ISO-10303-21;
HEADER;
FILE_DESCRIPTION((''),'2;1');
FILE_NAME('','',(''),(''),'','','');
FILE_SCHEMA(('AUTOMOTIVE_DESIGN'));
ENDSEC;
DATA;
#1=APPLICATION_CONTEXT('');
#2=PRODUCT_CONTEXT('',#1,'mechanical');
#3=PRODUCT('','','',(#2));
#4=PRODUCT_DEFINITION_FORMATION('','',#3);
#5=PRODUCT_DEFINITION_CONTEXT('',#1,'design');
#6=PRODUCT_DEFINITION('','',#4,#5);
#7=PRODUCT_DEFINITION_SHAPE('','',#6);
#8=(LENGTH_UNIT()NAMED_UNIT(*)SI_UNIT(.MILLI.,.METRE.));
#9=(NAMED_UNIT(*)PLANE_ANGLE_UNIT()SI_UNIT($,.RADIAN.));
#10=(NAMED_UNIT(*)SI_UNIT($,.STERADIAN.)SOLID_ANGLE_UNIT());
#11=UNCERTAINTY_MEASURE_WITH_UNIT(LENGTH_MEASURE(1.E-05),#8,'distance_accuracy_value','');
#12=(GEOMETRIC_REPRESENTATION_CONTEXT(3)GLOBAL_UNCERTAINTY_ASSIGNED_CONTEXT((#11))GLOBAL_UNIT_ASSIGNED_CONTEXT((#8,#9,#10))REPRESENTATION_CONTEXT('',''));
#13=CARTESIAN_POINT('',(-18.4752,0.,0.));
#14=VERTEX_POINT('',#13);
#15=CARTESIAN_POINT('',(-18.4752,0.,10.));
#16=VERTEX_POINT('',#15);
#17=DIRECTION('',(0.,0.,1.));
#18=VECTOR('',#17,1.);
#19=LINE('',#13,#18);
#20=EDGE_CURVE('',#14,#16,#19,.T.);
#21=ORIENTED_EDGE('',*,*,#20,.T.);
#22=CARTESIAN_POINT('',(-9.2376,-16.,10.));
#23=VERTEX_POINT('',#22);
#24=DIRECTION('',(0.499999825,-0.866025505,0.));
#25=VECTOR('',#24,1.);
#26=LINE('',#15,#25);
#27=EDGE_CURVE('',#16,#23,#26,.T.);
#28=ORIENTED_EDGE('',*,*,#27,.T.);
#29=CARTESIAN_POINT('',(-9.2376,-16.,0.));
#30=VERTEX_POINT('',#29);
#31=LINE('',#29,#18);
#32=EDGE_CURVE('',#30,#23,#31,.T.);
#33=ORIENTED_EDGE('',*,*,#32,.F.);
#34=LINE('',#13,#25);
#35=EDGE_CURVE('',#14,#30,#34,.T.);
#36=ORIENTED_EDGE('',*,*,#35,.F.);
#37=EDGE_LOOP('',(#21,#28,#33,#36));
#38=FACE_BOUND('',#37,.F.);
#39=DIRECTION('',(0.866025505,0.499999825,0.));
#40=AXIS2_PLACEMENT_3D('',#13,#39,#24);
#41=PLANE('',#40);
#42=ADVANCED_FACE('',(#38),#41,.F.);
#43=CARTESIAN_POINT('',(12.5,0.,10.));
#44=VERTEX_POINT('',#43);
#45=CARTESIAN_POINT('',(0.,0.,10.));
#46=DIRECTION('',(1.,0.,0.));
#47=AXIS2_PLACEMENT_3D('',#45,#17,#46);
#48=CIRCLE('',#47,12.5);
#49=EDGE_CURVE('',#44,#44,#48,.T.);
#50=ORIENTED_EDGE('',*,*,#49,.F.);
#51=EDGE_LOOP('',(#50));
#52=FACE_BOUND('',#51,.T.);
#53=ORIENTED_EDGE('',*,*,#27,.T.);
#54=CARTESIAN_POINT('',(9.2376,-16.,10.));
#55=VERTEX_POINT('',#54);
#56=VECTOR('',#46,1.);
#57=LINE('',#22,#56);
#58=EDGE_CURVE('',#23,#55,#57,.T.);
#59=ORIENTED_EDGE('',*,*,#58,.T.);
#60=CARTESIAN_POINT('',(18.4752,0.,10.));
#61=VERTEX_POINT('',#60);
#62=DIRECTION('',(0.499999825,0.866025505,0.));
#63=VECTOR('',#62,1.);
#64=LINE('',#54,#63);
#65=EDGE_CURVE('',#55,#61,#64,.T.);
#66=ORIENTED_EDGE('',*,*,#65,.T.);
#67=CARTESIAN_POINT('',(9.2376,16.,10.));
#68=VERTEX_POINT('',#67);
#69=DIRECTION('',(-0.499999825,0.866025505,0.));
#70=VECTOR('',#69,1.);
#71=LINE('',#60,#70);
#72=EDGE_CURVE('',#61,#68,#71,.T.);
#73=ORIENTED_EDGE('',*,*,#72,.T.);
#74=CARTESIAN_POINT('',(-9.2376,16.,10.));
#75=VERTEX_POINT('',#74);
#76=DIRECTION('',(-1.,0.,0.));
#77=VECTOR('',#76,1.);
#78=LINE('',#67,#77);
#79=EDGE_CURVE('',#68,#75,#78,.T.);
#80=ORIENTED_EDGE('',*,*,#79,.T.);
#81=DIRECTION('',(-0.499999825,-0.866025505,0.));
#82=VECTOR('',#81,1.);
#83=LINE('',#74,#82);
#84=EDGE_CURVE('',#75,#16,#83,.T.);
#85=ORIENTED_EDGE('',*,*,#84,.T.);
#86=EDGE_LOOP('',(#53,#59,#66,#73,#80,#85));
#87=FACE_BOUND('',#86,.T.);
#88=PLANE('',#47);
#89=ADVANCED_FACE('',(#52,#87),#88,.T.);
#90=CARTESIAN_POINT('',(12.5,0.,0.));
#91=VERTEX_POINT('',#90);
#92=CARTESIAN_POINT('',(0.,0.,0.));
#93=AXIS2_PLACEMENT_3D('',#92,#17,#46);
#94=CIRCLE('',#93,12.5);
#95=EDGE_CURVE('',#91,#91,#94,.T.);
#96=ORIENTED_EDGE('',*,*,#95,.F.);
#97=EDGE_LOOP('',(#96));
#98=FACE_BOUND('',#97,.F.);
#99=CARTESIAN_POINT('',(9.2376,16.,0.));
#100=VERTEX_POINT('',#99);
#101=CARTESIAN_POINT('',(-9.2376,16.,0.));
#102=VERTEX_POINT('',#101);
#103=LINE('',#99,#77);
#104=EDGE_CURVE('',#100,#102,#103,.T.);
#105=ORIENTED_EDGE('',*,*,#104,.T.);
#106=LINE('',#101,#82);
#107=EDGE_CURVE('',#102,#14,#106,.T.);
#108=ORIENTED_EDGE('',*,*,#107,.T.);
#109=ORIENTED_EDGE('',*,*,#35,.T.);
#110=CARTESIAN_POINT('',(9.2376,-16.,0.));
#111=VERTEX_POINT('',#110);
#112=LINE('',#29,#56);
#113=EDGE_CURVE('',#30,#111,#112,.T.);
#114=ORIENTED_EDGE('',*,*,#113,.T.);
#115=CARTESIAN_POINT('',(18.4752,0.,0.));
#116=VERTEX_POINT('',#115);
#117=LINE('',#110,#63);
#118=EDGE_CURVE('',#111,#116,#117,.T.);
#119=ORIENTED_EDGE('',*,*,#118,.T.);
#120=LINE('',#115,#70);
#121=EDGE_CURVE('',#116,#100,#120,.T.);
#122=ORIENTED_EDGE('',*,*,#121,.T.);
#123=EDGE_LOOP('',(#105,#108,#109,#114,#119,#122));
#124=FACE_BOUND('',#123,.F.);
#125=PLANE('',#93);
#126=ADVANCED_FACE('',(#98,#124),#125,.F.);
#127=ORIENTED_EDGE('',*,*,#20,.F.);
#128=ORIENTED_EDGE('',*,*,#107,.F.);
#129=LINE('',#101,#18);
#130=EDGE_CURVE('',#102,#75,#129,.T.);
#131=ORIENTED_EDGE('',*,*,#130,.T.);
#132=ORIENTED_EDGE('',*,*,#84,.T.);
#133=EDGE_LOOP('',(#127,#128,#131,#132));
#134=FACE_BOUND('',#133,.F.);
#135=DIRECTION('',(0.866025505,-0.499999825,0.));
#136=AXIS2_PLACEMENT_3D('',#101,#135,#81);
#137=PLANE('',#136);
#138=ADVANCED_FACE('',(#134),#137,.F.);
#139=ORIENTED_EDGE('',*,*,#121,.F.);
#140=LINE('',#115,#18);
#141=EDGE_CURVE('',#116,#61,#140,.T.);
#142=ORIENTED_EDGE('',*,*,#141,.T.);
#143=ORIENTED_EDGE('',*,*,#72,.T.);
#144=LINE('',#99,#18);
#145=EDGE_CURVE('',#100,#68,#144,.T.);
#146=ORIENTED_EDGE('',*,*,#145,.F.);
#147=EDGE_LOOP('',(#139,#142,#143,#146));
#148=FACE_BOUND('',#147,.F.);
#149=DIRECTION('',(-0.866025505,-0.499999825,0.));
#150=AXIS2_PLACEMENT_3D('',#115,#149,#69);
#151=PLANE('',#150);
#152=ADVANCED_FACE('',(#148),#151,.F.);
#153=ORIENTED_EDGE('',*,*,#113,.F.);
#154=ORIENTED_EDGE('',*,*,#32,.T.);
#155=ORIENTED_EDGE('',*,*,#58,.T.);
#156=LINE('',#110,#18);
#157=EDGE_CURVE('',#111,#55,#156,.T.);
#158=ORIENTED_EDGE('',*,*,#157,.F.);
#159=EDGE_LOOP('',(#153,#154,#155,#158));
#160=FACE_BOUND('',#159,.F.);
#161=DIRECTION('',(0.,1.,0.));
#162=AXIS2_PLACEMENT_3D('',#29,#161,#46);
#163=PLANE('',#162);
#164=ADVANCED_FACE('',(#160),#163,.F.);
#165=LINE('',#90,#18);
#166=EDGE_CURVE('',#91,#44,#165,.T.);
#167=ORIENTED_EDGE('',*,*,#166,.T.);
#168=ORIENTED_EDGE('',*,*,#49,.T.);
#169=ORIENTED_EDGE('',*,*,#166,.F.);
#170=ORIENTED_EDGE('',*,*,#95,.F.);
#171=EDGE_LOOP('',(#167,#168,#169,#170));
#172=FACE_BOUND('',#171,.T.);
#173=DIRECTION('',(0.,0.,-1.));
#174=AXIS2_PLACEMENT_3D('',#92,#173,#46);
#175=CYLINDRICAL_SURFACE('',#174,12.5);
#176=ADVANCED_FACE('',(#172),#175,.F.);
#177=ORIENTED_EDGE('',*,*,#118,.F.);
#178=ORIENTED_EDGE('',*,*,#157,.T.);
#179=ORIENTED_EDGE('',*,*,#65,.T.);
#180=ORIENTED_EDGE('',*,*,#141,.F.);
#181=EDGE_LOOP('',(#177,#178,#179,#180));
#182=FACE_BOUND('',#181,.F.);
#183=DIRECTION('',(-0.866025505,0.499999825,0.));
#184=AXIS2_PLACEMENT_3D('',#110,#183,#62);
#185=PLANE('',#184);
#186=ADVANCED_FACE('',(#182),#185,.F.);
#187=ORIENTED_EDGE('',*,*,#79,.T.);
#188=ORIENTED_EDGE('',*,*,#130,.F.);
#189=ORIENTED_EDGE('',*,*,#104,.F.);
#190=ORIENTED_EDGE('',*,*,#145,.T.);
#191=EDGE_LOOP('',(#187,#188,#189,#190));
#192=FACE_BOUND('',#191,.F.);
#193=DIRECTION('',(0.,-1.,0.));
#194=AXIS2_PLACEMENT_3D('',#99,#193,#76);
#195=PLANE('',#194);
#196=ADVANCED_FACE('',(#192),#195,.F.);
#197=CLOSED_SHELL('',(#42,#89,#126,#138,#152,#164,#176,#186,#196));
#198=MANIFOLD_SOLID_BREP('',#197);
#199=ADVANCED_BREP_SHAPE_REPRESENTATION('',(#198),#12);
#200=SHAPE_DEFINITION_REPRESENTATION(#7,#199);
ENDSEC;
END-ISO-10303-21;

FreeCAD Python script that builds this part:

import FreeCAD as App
import Part
import Sketcher
Q = App.Units.Quantity


def add_polygon(sketch, points):
    """Adds a closed chain of lines whose ends are joined by coincident constraints."""
    first, n = sketch.GeometryCount, len(points)
    for a, b in zip(points, points[1:] + points[:1]):
        sketch.addGeometry(Part.LineSegment(App.Vector(*a, 0), App.Vector(*b, 0)), False)
    for i in range(n):
        sketch.addConstraint(Sketcher.Constraint("Coincident", first + i, 2, first + (i + 1) % n, 1))

doc = App.newDocument("Part")
body = doc.addObject("PartDesign::Body", "Body")

# Sketch on XY plane
sketch1 = body.newObject("Sketcher::SketchObject", "Sketch")
sketch1.AttachmentSupport = (doc.getObject("XY_Plane"), [""])
sketch1.MapMode = "FlatFace"
add_polygon(sketch1, [(9, 16), (-9, 16), (-18, 0), (-9, -16), (9, -16), (18, 0)])  # lines 0-5
sketch1.addGeometry(Part.Circle(App.Vector(0, 0, 0), App.Vector(0, 0, 1), 12), False)  # 6
sketch1.addConstraint(Sketcher.Constraint("Horizontal", 0))
sketch1.addConstraint(Sketcher.Constraint("Horizontal", 3))
sketch1.addConstraint(Sketcher.Constraint("Coincident", 6, 3, -1, 1))
sketch1.addConstraint(Sketcher.Constraint("Symmetric", 0, 2, 3, 2, -1, 1))
sketch1.addConstraint(Sketcher.Constraint("Symmetric", 1, 2, 4, 2, -1, 1))
sketch1.addConstraint(Sketcher.Constraint("PointOnObject", 1, 2, -1))
sketch1.addConstraint(Sketcher.Constraint("Parallel", 2, 5))
sketch1.addConstraint(Sketcher.Constraint("Vertical", 0, 2, 2, 2))
sketch1.addConstraint(Sketcher.Constraint("Diameter", 6, Q("25 mm")))
sketch1.addConstraint(Sketcher.Constraint("Angle", 1, Q("-120 deg")))
sketch1.addConstraint(Sketcher.Constraint("DistanceY", -1, 1, 0, 2, Q("16 mm")))
sketch1.addConstraint(Sketcher.Constraint("DistanceX", 0, 2, 0, 1, Q("18.4752 mm")))
pad1 = body.newObject("PartDesign::Pad", "Pad")
pad1.Profile = sketch1
pad1.Length = 10

doc.recompute()
